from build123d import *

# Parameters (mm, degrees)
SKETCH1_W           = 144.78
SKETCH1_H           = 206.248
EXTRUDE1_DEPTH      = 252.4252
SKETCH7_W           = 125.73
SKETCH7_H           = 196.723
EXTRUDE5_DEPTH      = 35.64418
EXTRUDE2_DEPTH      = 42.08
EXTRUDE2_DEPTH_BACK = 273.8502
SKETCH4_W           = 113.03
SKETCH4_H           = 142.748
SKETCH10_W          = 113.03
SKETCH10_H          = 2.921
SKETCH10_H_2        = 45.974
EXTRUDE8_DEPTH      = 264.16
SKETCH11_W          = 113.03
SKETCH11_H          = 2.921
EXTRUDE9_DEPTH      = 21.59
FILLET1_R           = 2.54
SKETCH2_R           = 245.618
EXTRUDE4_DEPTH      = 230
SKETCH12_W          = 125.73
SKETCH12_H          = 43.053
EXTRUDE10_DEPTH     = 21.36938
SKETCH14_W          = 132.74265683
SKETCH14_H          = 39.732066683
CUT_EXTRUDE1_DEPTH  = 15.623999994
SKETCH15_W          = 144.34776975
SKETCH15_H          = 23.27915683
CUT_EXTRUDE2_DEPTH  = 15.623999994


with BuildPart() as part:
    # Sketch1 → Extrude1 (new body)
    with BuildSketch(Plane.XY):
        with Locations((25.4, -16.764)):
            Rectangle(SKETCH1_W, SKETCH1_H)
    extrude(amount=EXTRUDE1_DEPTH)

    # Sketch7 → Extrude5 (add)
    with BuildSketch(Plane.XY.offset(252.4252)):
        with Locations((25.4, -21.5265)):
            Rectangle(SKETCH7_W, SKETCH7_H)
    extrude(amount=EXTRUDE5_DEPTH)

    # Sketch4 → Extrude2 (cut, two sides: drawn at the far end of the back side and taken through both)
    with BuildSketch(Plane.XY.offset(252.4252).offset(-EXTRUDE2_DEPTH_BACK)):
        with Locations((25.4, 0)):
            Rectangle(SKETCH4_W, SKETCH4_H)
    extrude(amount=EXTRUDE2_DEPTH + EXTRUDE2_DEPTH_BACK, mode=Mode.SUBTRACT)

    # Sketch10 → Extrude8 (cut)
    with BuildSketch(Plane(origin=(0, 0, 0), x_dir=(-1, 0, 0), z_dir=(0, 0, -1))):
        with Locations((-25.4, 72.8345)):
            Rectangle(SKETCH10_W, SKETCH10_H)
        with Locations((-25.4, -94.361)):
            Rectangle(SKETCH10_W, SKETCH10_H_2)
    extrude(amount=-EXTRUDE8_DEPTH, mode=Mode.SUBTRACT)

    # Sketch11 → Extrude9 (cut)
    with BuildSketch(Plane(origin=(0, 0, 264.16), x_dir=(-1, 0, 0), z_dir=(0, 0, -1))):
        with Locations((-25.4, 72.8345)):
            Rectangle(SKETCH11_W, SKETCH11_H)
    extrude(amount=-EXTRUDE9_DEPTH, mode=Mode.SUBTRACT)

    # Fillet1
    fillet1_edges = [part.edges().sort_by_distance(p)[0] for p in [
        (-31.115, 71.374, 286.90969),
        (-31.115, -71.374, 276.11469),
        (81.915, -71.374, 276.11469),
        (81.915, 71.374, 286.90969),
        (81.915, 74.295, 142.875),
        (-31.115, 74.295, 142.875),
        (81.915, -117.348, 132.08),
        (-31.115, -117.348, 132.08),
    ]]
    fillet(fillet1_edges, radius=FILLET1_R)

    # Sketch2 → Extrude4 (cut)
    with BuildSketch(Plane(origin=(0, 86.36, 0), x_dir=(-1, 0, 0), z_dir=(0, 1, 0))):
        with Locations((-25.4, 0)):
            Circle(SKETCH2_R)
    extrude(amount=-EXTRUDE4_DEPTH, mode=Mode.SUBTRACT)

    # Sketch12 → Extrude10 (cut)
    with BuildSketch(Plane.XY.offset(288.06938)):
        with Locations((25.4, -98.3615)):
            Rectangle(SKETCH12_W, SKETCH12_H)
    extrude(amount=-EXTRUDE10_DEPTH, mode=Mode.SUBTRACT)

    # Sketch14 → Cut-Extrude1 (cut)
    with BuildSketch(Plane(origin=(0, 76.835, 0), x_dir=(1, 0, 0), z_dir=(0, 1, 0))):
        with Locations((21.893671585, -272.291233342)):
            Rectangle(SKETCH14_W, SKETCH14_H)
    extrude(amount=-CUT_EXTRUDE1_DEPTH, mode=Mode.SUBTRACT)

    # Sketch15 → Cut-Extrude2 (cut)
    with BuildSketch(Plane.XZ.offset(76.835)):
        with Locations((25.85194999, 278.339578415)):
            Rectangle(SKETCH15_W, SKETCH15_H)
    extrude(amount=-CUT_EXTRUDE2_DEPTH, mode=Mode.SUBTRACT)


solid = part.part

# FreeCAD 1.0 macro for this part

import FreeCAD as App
import Part
import Sketcher

V = App.Vector
Q = App.Units.Quantity


def edges_at(feature, points):
    """Names of the edges that pass closest to the given points."""
    edges = feature.Shape.Edges
    near = lambda p: min(range(len(edges)), key=lambda i: edges[i].distToShape(Part.Vertex(*p))[0])
    return sorted({f"Edge{near(p) + 1}" for p in points})


def add_polygon(sketch, points):
    """Adds a closed chain of lines whose ends are joined by coincident constraints."""
    first, n = sketch.GeometryCount, len(points)
    for a, b in zip(points, points[1:] + points[:1]):
        sketch.addGeometry(Part.LineSegment(App.Vector(*a, 0), App.Vector(*b, 0)), False)
    for i in range(n):
        sketch.addConstraint(Sketcher.Constraint("Coincident", first + i, 2, first + (i + 1) % n, 1))

doc = App.newDocument("Part")
body = doc.addObject("PartDesign::Body", "Body")

# Sketch on XY plane
sketch1 = body.newObject("Sketcher::SketchObject", "Sketch")
sketch1.AttachmentSupport = (doc.getObject("XY_Plane"), [""])
sketch1.MapMode = "FlatFace"
add_polygon(sketch1, [(-47, 86), (-47, -120), (98, -120), (98, 86)])  # lines 0-3
sketch1.addConstraint(Sketcher.Constraint("Vertical", 0))
sketch1.addConstraint(Sketcher.Constraint("Horizontal", 1))
sketch1.addConstraint(Sketcher.Constraint("Vertical", 2))
sketch1.addConstraint(Sketcher.Constraint("Horizontal", 3))
sketch1.addConstraint(Sketcher.Constraint("DistanceX", 1, 1, 1, 2, Q("5.7 in")))
sketch1.addConstraint(Sketcher.Constraint("DistanceY", 0, 2, 0, 1, Q("8.12 in")))
sketch1.addConstraint(Sketcher.Constraint("DistanceY", -1, 1, 2, 2, Q("3.4 in")))
sketch1.addConstraint(Sketcher.Constraint("DistanceX", 0, 2, -1, 1, Q("1.85 in")))
pad1 = body.newObject("PartDesign::Pad", "Pad")
pad1.Profile = sketch1
pad1.Length = Q("9.938 in")

# Sketch on XY plane
sketch2 = body.newObject("Sketcher::SketchObject", "Sketch001")
sketch2.AttachmentSupport = (doc.getObject("XY_Plane"), [""])
sketch2.MapMode = "FlatFace"
sketch2.AttachmentOffset = App.Placement(V(0, 0, 9.938 * 25.4), App.Rotation())
add_polygon(sketch2, [(-37, 77), (-37, -120), (88, -120), (88, 77)])  # lines 0-3
sketch2.addConstraint(Sketcher.Constraint("Vertical", 0))
sketch2.addConstraint(Sketcher.Constraint("Horizontal", 1))
sketch2.addConstraint(Sketcher.Constraint("Vertical", 2))
sketch2.addConstraint(Sketcher.Constraint("Horizontal", 3))
sketch2.addConstraint(Sketcher.Constraint("DistanceX", 1, 1, 1, 2, Q("4.95 in")))
sketch2.addConstraint(Sketcher.Constraint("DistanceY", 0, 2, 0, 1, Q("7.745 in")))
sketch2.addConstraint(Sketcher.Constraint("DistanceY", 0, 2, -1, 1, Q("4.72 in")))
sketch2.addConstraint(Sketcher.Constraint("DistanceX", 0, 2, -1, 1, Q("1.475 in")))
pad2 = body.newObject("PartDesign::Pad", "Pad001")
pad2.Profile = sketch2
pad2.Length = 35.64418

# Sketch on XY plane
sketch3 = body.newObject("Sketcher::SketchObject", "Sketch002")
sketch3.AttachmentSupport = (doc.getObject("XY_Plane"), [""])
sketch3.MapMode = "FlatFace"
sketch3.AttachmentOffset = App.Placement(V(0, 0, 9.938 * 25.4), App.Rotation())
add_polygon(sketch3, [(-31, 71), (-31, -71), (82, -71), (82, 71)])  # lines 0-3
sketch3.addConstraint(Sketcher.Constraint("Vertical", 0))
sketch3.addConstraint(Sketcher.Constraint("Horizontal", 1))
sketch3.addConstraint(Sketcher.Constraint("Vertical", 2))
sketch3.addConstraint(Sketcher.Constraint("Horizontal", 3))
sketch3.addConstraint(Sketcher.Constraint("DistanceX", 1, 1, 1, 2, Q("4.45 in")))
sketch3.addConstraint(Sketcher.Constraint("DistanceY", 0, 2, 0, 1, Q("5.62 in")))
sketch3.addConstraint(Sketcher.Constraint("DistanceY", 0, 2, -1, 1, Q("2.81 in")))
sketch3.addConstraint(Sketcher.Constraint("DistanceX", 0, 2, -1, 1, Q("1.225 in")))
pocket1 = body.newObject("PartDesign::Pocket", "Pocket")
pocket1.Profile = sketch3
pocket1.Type = "ThroughAll"
pocket1.Midplane = True

# Sketch on XY plane
sketch4 = body.newObject("Sketcher::SketchObject", "Sketch003")
sketch4.AttachmentSupport = (doc.getObject("XY_Plane"), [""])
sketch4.MapMode = "FlatFace"
add_polygon(sketch4, [(81.9, 74.3), (81.9, 71.4), (-31.1, 71.4), (-31.1, 74.3)])  # lines 0-3
add_polygon(sketch4, [(81.9, -71.4), (81.9, -117.3), (-31.1, -117.3), (-31.1, -71.4)])  # lines 4-7
sketch4.addConstraint(Sketcher.Constraint("Vertical", 0))
sketch4.addConstraint(Sketcher.Constraint("Horizontal", 1))
sketch4.addConstraint(Sketcher.Constraint("Vertical", 2))
sketch4.addConstraint(Sketcher.Constraint("Horizontal", 3))
sketch4.addConstraint(Sketcher.Constraint("Vertical", 4))
sketch4.addConstraint(Sketcher.Constraint("Horizontal", 5))
sketch4.addConstraint(Sketcher.Constraint("Vertical", 6))
sketch4.addConstraint(Sketcher.Constraint("Horizontal", 7))
sketch4.addConstraint(Sketcher.Constraint("Symmetric", 1, 2, 6, 2, -1))
sketch4.addConstraint(Sketcher.Constraint("Vertical", 3, 2, 4, 2))
sketch4.addConstraint(Sketcher.Constraint("DistanceX", 1, 2, 1, 1, Q("4.45 in")))
sketch4.addConstraint(Sketcher.Constraint("DistanceY", 4, 2, 4, 1, Q("1.81 in")))
sketch4.addConstraint(Sketcher.Constraint("DistanceY", 0, 2, 0, 1, Q("0.115 in")))
sketch4.addConstraint(Sketcher.Constraint("DistanceY", -1, 1, 0, 2, Q("2.81 in")))
sketch4.addConstraint(Sketcher.Constraint("DistanceX", -1, 1, 0, 2, Q("3.225 in")))
pocket2 = body.newObject("PartDesign::Pocket", "Pocket001")
pocket2.Profile = sketch4
pocket2.Length = Q("10.4 in")
pocket2.Reversed = True

# Sketch on XY plane
sketch5 = body.newObject("Sketcher::SketchObject", "Sketch004")
sketch5.AttachmentSupport = (doc.getObject("XY_Plane"), [""])
sketch5.MapMode = "FlatFace"
sketch5.AttachmentOffset = App.Placement(V(0, 0, 10.4 * 25.4), App.Rotation())
add_polygon(sketch5, [(81.9, 74.3), (81.9, 71.4), (-31.1, 71.4), (-31.1, 74.3)])  # lines 0-3
sketch5.addConstraint(Sketcher.Constraint("Vertical", 0))
sketch5.addConstraint(Sketcher.Constraint("Horizontal", 1))
sketch5.addConstraint(Sketcher.Constraint("Vertical", 2))
sketch5.addConstraint(Sketcher.Constraint("Horizontal", 3))
sketch5.addConstraint(Sketcher.Constraint("DistanceX", 1, 2, 1, 1, Q("4.45 in")))
sketch5.addConstraint(Sketcher.Constraint("DistanceY", 0, 2, 0, 1, Q("0.115 in")))
sketch5.addConstraint(Sketcher.Constraint("DistanceY", -1, 1, 0, 2, Q("2.81 in")))
sketch5.addConstraint(Sketcher.Constraint("DistanceX", -1, 1, 0, 2, Q("3.225 in")))
pocket3 = body.newObject("PartDesign::Pocket", "Pocket002")
pocket3.Profile = sketch5
pocket3.Length = Q("0.85 in")
pocket3.Reversed = True
doc.recompute()

fillet = body.newObject("PartDesign::Fillet", "Fillet")
fillet.Base = (pocket3, edges_at(pocket3, [
    (-31.115, 71.374, 286.91),
    (-31.115, -71.374, 276.115),
    (81.915, -71.374, 276.115),
    (81.915, 71.374, 286.91),
    (81.915, 74.295, 142.875),
    (-31.115, 74.295, 142.875),
    (81.915, -117.348, 132.08),
    (-31.115, -117.348, 132.08),
]))
fillet.Radius = Q("0.1 in")

# Sketch on XZ plane
sketch6 = body.newObject("Sketcher::SketchObject", "Sketch005")
sketch6.AttachmentSupport = (doc.getObject("XZ_Plane"), [""])
sketch6.MapMode = "FlatFace"
sketch6.AttachmentOffset = App.Placement(V(0, 0, -3.4 * 25.4), App.Rotation())
sketch6.addGeometry(Part.Circle(V(25, 0, 0), V(0, 0, 1), 246), False)
sketch6.addConstraint(Sketcher.Constraint("PointOnObject", 0, 3, -1))
sketch6.addConstraint(Sketcher.Constraint("Diameter", 0, Q("19.34 in")))
sketch6.addConstraint(Sketcher.Constraint("DistanceX", -1, 1, 0, 3, Q("1 in")))
pocket4 = body.newObject("PartDesign::Pocket", "Pocket003")
pocket4.Profile = sketch6
pocket4.Length = 230
pocket4.Reversed = True

# Sketch on XY plane
sketch7 = body.newObject("Sketcher::SketchObject", "Sketch006")
sketch7.AttachmentSupport = (doc.getObject("XY_Plane"), [""])
sketch7.MapMode = "FlatFace"
sketch7.AttachmentOffset = App.Placement(V(0, 0, 288.06938), App.Rotation())
add_polygon(sketch7, [(-37, -77), (-37, -120), (88, -120), (88, -77)])  # lines 0-3
sketch7.addConstraint(Sketcher.Constraint("Vertical", 0))
sketch7.addConstraint(Sketcher.Constraint("Horizontal", 1))
sketch7.addConstraint(Sketcher.Constraint("Vertical", 2))
sketch7.addConstraint(Sketcher.Constraint("Horizontal", 3))
sketch7.addConstraint(Sketcher.Constraint("DistanceX", 1, 1, 1, 2, Q("4.95 in")))
sketch7.addConstraint(Sketcher.Constraint("DistanceY", 0, 2, 0, 1, Q("1.695 in")))
sketch7.addConstraint(Sketcher.Constraint("DistanceY", 0, 2, -1, 1, Q("4.72 in")))
sketch7.addConstraint(Sketcher.Constraint("DistanceX", 0, 2, -1, 1, Q("1.475 in")))
pocket5 = body.newObject("PartDesign::Pocket", "Pocket004")
pocket5.Profile = sketch7
pocket5.Length = 21.36938

# Sketch on XZ plane
sketch8 = body.newObject("Sketcher::SketchObject", "Sketch007")
sketch8.AttachmentSupport = (doc.getObject("XZ_Plane"), [""])
sketch8.MapMode = "FlatFace"
sketch8.AttachmentOffset = App.Placement(V(0, 0, -3.025 * 25.4), App.Rotation())
add_polygon(sketch8, [(-44, 252), (-44, 292), (88, 292), (88, 252)])  # lines 0-3
sketch8.addConstraint(Sketcher.Constraint("Vertical", 0))
sketch8.addConstraint(Sketcher.Constraint("Horizontal", 1))
sketch8.addConstraint(Sketcher.Constraint("Vertical", 2))
sketch8.addConstraint(Sketcher.Constraint("Horizontal", 3))
sketch8.addConstraint(Sketcher.Constraint("DistanceX", -1, 1, 1, 2, Q("3.475 in")))
sketch8.addConstraint(Sketcher.Constraint("DistanceY", -1, 1, 2, 2, Q("9.938 in")))
sketch8.addConstraint(Sketcher.Constraint("DistanceX", 1, 1, 1, 2, 132.742657))
sketch8.addConstraint(Sketcher.Constraint("DistanceY", 0, 1, 0, 2, 39.732067))
pocket6 = body.newObject("PartDesign::Pocket", "Pocket005")
pocket6.Profile = sketch8
pocket6.Length = 15.624
pocket6.Reversed = True

# Sketch on XZ plane
sketch9 = body.newObject("Sketcher::SketchObject", "Sketch008")
sketch9.AttachmentSupport = (doc.getObject("XZ_Plane"), [""])
sketch9.MapMode = "FlatFace"
sketch9.AttachmentOffset = App.Placement(V(0, 0, 3.025 * 25.4), App.Rotation())
add_polygon(sketch9, [(-46, 290), (-46, 267), (98, 267), (98, 290)])  # lines 0-3
sketch9.addConstraint(Sketcher.Constraint("Vertical", 0))
sketch9.addConstraint(Sketcher.Constraint("Horizontal", 1))
sketch9.addConstraint(Sketcher.Constraint("Vertical", 2))
sketch9.addConstraint(Sketcher.Constraint("Horizontal", 3))
sketch9.addConstraint(Sketcher.Constraint("DistanceY", -1, 1, 0, 2, Q("10.5 in")))
sketch9.addConstraint(Sketcher.Constraint("DistanceX", 1, 1, 1, 2, 144.34777))
sketch9.addConstraint(Sketcher.Constraint("DistanceY", 0, 2, 0, 1, 23.279157))
sketch9.addConstraint(Sketcher.Constraint("DistanceX", 0, 2, -1, 1, 46.321935))
pocket7 = body.newObject("PartDesign::Pocket", "Pocket006")
pocket7.Profile = sketch9
pocket7.Length = 15.624

doc.recompute()
